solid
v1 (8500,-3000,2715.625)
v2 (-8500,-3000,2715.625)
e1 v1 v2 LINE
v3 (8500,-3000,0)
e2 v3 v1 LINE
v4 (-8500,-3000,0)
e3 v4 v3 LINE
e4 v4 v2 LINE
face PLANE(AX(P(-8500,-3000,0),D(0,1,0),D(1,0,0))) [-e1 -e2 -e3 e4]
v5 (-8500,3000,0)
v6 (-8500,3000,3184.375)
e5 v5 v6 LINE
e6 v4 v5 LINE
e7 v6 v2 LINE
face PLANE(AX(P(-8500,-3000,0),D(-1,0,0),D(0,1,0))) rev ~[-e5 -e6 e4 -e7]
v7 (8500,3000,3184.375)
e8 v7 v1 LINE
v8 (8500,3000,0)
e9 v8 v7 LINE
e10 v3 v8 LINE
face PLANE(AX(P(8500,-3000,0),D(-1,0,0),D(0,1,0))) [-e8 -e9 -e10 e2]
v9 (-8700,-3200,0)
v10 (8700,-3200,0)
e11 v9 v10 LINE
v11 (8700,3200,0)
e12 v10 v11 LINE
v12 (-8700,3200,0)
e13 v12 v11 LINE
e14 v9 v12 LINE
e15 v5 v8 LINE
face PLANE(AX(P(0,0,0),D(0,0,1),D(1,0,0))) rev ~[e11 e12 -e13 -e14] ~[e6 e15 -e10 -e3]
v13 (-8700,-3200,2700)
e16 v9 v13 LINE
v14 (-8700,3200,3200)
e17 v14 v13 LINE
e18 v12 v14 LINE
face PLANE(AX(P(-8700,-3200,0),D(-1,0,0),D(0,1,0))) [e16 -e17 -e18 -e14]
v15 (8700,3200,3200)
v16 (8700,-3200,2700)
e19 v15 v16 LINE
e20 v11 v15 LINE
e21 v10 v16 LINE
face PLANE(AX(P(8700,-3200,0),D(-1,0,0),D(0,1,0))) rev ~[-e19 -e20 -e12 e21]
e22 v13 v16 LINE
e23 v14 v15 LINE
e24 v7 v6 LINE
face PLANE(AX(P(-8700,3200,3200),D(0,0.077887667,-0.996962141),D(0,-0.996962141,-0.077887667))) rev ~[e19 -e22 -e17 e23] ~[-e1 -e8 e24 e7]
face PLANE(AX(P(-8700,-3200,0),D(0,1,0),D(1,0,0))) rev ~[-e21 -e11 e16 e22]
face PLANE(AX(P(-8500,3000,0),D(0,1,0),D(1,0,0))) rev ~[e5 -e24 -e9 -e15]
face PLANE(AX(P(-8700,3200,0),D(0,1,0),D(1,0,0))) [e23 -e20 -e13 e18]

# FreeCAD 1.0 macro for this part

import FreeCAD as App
import Part
import Sketcher

doc = App.newDocument("Part")
params = doc.addObject("Spreadsheet::Sheet", "Params")
for row, (alias, value) in enumerate([
    ("sketch1_width", "17400 mm"),
    ("sketch1_width2", "17000 mm"),
    ("sketch1_height", "6400 mm"),
    ("sketch1_height2", "6000 mm"),
    ("pad1_length", "3200 mm"),
    ("sketch2_width", "6400 mm"),
    ("sketch2_height", "500 mm"),
], start=1):
    params.set(f"A{row}", alias)
    params.set(f"B{row}", "=" + value)
    params.setAlias(f"B{row}", alias)

body = doc.addObject("PartDesign::Body", "Body")

sketch1 = body.newObject("Sketcher::SketchObject", "Sketch")
sketch1.AttachmentSupport = (doc.getObject("XY_Plane"), [""])
sketch1.MapMode = "FlatFace"
sketch1.addGeometry(Part.LineSegment(App.Vector(-8700, 3200, 0), App.Vector(-8700, -3200, 0)), False)
sketch1.addGeometry(Part.LineSegment(App.Vector(-8700, -3200, 0), App.Vector(8700, -3200, 0)), False)
sketch1.addGeometry(Part.LineSegment(App.Vector(8700, -3200, 0), App.Vector(8700, 3200, 0)), False)
sketch1.addGeometry(Part.LineSegment(App.Vector(8700, 3200, 0), App.Vector(-8700, 3200, 0)), False)
sketch1.addGeometry(Part.LineSegment(App.Vector(8500, -3000, 0), App.Vector(-8500, -3000, 0)), False)
sketch1.addGeometry(Part.LineSegment(App.Vector(-8500, -3000, 0), App.Vector(-8500, 3000, 0)), False)
sketch1.addGeometry(Part.LineSegment(App.Vector(-8500, 3000, 0), App.Vector(8500, 3000, 0)), False)
sketch1.addGeometry(Part.LineSegment(App.Vector(8500, 3000, 0), App.Vector(8500, -3000, 0)), False)
sketch1.addConstraint(Sketcher.Constraint("Coincident", 0, 2, 1, 1))
sketch1.addConstraint(Sketcher.Constraint("Coincident", 1, 2, 2, 1))
sketch1.addConstraint(Sketcher.Constraint("Coincident", 2, 2, 3, 1))
sketch1.addConstraint(Sketcher.Constraint("Coincident", 3, 2, 0, 1))
sketch1.addConstraint(Sketcher.Constraint("Coincident", 4, 2, 5, 1))
sketch1.addConstraint(Sketcher.Constraint("Coincident", 5, 2, 6, 1))
sketch1.addConstraint(Sketcher.Constraint("Coincident", 6, 2, 7, 1))
sketch1.addConstraint(Sketcher.Constraint("Coincident", 7, 2, 4, 1))
sketch1.addConstraint(Sketcher.Constraint("Vertical", 0))
sketch1.addConstraint(Sketcher.Constraint("Horizontal", 1))
sketch1.addConstraint(Sketcher.Constraint("Vertical", 2))
sketch1.addConstraint(Sketcher.Constraint("Horizontal", 3))
sketch1.addConstraint(Sketcher.Constraint("Horizontal", 4))
sketch1.addConstraint(Sketcher.Constraint("Vertical", 5))
sketch1.addConstraint(Sketcher.Constraint("Horizontal", 6))
sketch1.addConstraint(Sketcher.Constraint("Vertical", 7))
sketch1.addConstraint(Sketcher.Constraint("Symmetric", 0, 2, 2, 2, -1, 1))
sketch1.addConstraint(Sketcher.Constraint("Symmetric", 4, 2, 6, 2, -1, 1))
sketch1.addConstraint(Sketcher.Constraint("DistanceX", 1, 1, 1, 2, 17400.0))
sketch1.addConstraint(Sketcher.Constraint("DistanceX", 4, 2, 4, 1, 17000.0))
sketch1.addConstraint(Sketcher.Constraint("DistanceY", 0, 2, 0, 1, 6400.0))
sketch1.addConstraint(Sketcher.Constraint("DistanceY", 5, 1, 5, 2, 6000.0))
sketch1.setExpression("Constraints[18]", "Params.sketch1_width")
sketch1.setExpression("Constraints[19]", "Params.sketch1_width2")
sketch1.setExpression("Constraints[20]", "Params.sketch1_height")
sketch1.setExpression("Constraints[21]", "Params.sketch1_height2")
pad1 = body.newObject("PartDesign::Pad", "Pad")
pad1.Profile = sketch1
pad1.setExpression("Length", "Params.pad1_length")

sketch2 = body.newObject("Sketcher::SketchObject", "Sketch001")
sketch2.AttachmentSupport = (doc.getObject("YZ_Plane"), [""])
sketch2.MapMode = "FlatFace"
sketch2.AttachmentOffset = App.Placement(App.Vector(0, 0, -8700), App.Rotation())
sketch2.addGeometry(Part.LineSegment(App.Vector(3200, 3200, 0), App.Vector(-3200, 2700, 0)), False)
sketch2.addGeometry(Part.LineSegment(App.Vector(-3200, 2700, 0), App.Vector(-3200, 3200, 0)), False)
sketch2.addGeometry(Part.LineSegment(App.Vector(-3200, 3200, 0), App.Vector(3200, 3200, 0)), False)
sketch2.addConstraint(Sketcher.Constraint("Coincident", 0, 2, 1, 1))
sketch2.addConstraint(Sketcher.Constraint("Coincident", 1, 2, 2, 1))
sketch2.addConstraint(Sketcher.Constraint("Coincident", 2, 2, 0, 1))
sketch2.addConstraint(Sketcher.Constraint("Vertical", 1))
sketch2.addConstraint(Sketcher.Constraint("Horizontal", 2))
sketch2.addConstraint(Sketcher.Constraint("DistanceX", 2, 1, 2, 2, 6400.0))
sketch2.addConstraint(Sketcher.Constraint("DistanceY", 1, 1, 1, 2, 500.0))
sketch2.addConstraint(Sketcher.Constraint("DistanceX", 0, 2, -1, 1, 3200.0))
sketch2.addConstraint(Sketcher.Constraint("DistanceY", -1, 1, 0, 2, 2700.0))
sketch2.setExpression("Constraints[5]", "Params.sketch2_width")
sketch2.setExpression("Constraints[6]", "Params.sketch2_height")
pocket1 = body.newObject("PartDesign::Pocket", "Pocket")
pocket1.Profile = sketch2
pocket1.Type = "ThroughAll"
pocket1.Reversed = True

doc.recompute()
